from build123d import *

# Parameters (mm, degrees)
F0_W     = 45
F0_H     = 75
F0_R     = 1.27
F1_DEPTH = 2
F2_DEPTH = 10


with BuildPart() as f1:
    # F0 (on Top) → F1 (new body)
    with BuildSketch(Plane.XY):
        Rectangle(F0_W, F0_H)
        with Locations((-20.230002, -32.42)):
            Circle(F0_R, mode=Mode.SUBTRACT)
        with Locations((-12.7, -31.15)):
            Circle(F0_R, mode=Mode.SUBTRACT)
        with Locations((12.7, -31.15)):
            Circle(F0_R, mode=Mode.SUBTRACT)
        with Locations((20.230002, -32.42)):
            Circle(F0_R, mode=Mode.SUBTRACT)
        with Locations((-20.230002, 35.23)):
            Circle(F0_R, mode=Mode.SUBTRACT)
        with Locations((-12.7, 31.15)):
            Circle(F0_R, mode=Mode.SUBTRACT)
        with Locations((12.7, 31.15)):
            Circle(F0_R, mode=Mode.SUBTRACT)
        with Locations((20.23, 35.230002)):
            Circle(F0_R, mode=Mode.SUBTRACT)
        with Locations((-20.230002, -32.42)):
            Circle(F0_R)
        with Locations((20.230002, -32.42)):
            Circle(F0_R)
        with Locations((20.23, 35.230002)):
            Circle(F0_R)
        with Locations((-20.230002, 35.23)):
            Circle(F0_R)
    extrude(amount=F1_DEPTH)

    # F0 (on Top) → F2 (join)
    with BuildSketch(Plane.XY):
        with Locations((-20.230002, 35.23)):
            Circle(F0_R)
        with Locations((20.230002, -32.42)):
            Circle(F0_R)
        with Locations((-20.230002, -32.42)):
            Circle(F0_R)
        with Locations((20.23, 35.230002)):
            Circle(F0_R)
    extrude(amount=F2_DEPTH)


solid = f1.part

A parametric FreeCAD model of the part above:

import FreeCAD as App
import Part
import Sketcher

V = App.Vector


def add_polygon(sketch, points):
    """Adds a closed chain of lines whose ends are joined by coincident constraints."""
    first, n = sketch.GeometryCount, len(points)
    for a, b in zip(points, points[1:] + points[:1]):
        sketch.addGeometry(Part.LineSegment(App.Vector(*a, 0), App.Vector(*b, 0)), False)
    for i in range(n):
        sketch.addConstraint(Sketcher.Constraint("Coincident", first + i, 2, first + (i + 1) % n, 1))

doc = App.newDocument("Part")
body = doc.addObject("PartDesign::Body", "Body")

# Sketch on XY plane
sketch1 = body.newObject("Sketcher::SketchObject", "Sketch")
sketch1.AttachmentSupport = (doc.getObject("XY_Plane"), [""])
sketch1.MapMode = "FlatFace"
add_polygon(sketch1, [(-22.5, 37.5), (-22.5, -37.5), (22.5, -37.5), (22.5, 37.5)])  # lines 0-3
sketch1.addGeometry(Part.Circle(V(-12.7, -31.15, 0), V(0, 0, 1), 1.27), False)  # 4
sketch1.addGeometry(Part.Circle(V(12.7, -31.15, 0), V(0, 0, 1), 1.27), False)  # 5
sketch1.addGeometry(Part.Circle(V(-12.7, 31.15, 0), V(0, 0, 1), 1.27), False)  # 6
sketch1.addGeometry(Part.Circle(V(12.7, 31.15, 0), V(0, 0, 1), 1.27), False)  # 7
sketch1.addConstraint([
    Sketcher.Constraint("Vertical", 0),
    Sketcher.Constraint("Horizontal", 1),
    Sketcher.Constraint("Vertical", 2),
    Sketcher.Constraint("Horizontal", 3),
    Sketcher.Constraint("Equal", 4, 5),
    Sketcher.Constraint("Equal", 5, 6),
    Sketcher.Constraint("Equal", 6, 7),
    Sketcher.Constraint("Symmetric", 5, 3, 6, 3, -1, 1),
    Sketcher.Constraint("Symmetric", 4, 3, 7, 3, -1, 1),
    Sketcher.Constraint("Symmetric", 0, 2, 2, 2, -1, 1),
    Sketcher.Constraint("Symmetric", 4, 3, 5, 3, -2),
    Sketcher.Constraint("Diameter", 4, 2.54),
    Sketcher.Constraint("DistanceX", 1, 1, 1, 2, 45.0),
    Sketcher.Constraint("DistanceY", 0, 2, 0, 1, 75.0),
    Sketcher.Constraint("DistanceX", 4, 3, -1, 1, 12.7),
    Sketcher.Constraint("DistanceY", 4, 3, 6, 3, 62.3),
])
pad1 = body.newObject("PartDesign::Pad", "Pad")
pad1.Profile = sketch1
pad1.Length = 2

# Sketch on XY plane
sketch2 = body.newObject("Sketcher::SketchObject", "Sketch001")
sketch2.AttachmentSupport = (doc.getObject("XY_Plane"), [""])
sketch2.MapMode = "FlatFace"
sketch2.addGeometry([
    Part.Circle(V(-20.230002, 35.23, 0), V(0, 0, 1), 1.27),
    Part.Circle(V(20.230002, -32.42, 0), V(0, 0, 1), 1.27),
    Part.Circle(V(-20.230002, -32.42, 0), V(0, 0, 1), 1.27),
    Part.Circle(V(20.23, 35.230002, 0), V(0, 0, 1), 1.27),
], False)
sketch2.addConstraint([
    Sketcher.Constraint("Equal", 0, 1),
    Sketcher.Constraint("Equal", 1, 2),
    Sketcher.Constraint("Equal", 2, 3),
    Sketcher.Constraint("Symmetric", 1, 3, 2, 3, -2),
    Sketcher.Constraint("Symmetric", 0, 3, 3, 3, -2),
    Sketcher.Constraint("Vertical", 0, 3, 2, 3),
    Sketcher.Constraint("Diameter", 0, 2.54),
    Sketcher.Constraint("DistanceX", 0, 3, -1, 1, 20.230002),
    Sketcher.Constraint("DistanceY", -1, 1, 0, 3, 35.23),
    Sketcher.Constraint("DistanceY", 1, 3, -1, 1, 32.42),
])
pad2 = body.newObject("PartDesign::Pad", "Pad001")
pad2.Profile = sketch2
pad2.Length = 10

doc.recompute()
